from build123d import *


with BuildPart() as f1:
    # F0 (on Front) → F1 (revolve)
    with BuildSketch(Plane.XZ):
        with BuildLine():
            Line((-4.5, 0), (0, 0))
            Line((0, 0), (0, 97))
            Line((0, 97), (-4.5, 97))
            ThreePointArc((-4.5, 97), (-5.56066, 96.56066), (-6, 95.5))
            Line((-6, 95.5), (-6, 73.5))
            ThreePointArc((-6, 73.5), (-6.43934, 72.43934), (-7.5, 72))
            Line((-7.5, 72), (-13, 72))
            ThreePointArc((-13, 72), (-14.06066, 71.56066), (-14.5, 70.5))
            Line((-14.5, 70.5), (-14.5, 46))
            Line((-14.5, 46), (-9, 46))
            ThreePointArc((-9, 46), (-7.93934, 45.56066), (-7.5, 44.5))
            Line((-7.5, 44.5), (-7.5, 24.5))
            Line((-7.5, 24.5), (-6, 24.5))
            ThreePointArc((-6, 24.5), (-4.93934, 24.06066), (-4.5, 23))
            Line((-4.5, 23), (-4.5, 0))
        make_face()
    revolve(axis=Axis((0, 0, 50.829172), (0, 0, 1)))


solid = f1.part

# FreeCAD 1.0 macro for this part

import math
import FreeCAD as App
import Part
import Sketcher
Q = App.Units.Quantity

doc = App.newDocument("Part")
params = doc.addObject("Spreadsheet::Sheet", "Params")
for row, (alias, value) in enumerate([
    ("sketch1_radius", "1.500001 mm"),
    ("sketch1_height", "97 mm"),
    ("sketch1_height2", "22 mm"),
    ("sketch1_height3", "20 mm"),
    ("sketch1_height4", "23 mm"),
    ("revolution_angle", "360 deg"),
], start=1):
    params.set(f"A{row}", alias)
    params.set(f"B{row}", "=" + value)
    params.setAlias(f"B{row}", alias)

body = doc.addObject("PartDesign::Body", "Body")

sketch1 = doc.addObject("Sketcher::SketchObject", "Sketch")
body.addObject(sketch1)
sketch1.AttachmentSupport = (doc.XZ_Plane, [""])
sketch1.MapMode = "FlatFace"
sketch1.addGeometry(Part.LineSegment(App.Vector(-4.5, 0, 0), App.Vector(0, 0, 0)), False)
sketch1.addGeometry(Part.LineSegment(App.Vector(0, 0, 0), App.Vector(0, 97, 0)), False)
sketch1.addGeometry(Part.LineSegment(App.Vector(0, 97, 0), App.Vector(-4.5, 97, 0)), False)
sketch1.addGeometry(Part.ArcOfCircle(Part.Circle(App.Vector(-4.499999, 95.499999, 0), App.Vector(0, 0, 1), 1.500001), math.radians(90.000022), math.radians(179.999978)), False)
sketch1.addGeometry(Part.LineSegment(App.Vector(-6, 95.5, 0), App.Vector(-6, 73.5, 0)), False)
sketch1.addGeometry(Part.ArcOfCircle(Part.Circle(App.Vector(-7.500001, 73.500001, 0), App.Vector(0, 0, 1), 1.500001), math.radians(-89.999978), math.radians(-0.000022)), False)
sketch1.addGeometry(Part.LineSegment(App.Vector(-7.5, 72, 0), App.Vector(-13, 72, 0)), False)
sketch1.addGeometry(Part.ArcOfCircle(Part.Circle(App.Vector(-12.999999, 70.499999, 0), App.Vector(0, 0, 1), 1.500001), math.radians(90.000022), math.radians(179.999978)), False)
sketch1.addGeometry(Part.LineSegment(App.Vector(-14.5, 70.5, 0), App.Vector(-14.5, 46, 0)), False)
sketch1.addGeometry(Part.LineSegment(App.Vector(-14.5, 46, 0), App.Vector(-9, 46, 0)), False)
sketch1.addGeometry(Part.ArcOfCircle(Part.Circle(App.Vector(-9.000001, 44.499999, 0), App.Vector(0, 0, 1), 1.500001), math.radians(0.000022), math.radians(89.999978)), False)
sketch1.addGeometry(Part.LineSegment(App.Vector(-7.5, 44.5, 0), App.Vector(-7.5, 24.5, 0)), False)
sketch1.addGeometry(Part.LineSegment(App.Vector(-7.5, 24.5, 0), App.Vector(-6, 24.5, 0)), False)
sketch1.addGeometry(Part.ArcOfCircle(Part.Circle(App.Vector(-6.000001, 22.999999, 0), App.Vector(0, 0, 1), 1.500001), math.radians(0.000022), math.radians(89.999978)), False)
sketch1.addGeometry(Part.LineSegment(App.Vector(-4.5, 23, 0), App.Vector(-4.5, 0, 0)), False)
sketch1.addConstraint(Sketcher.Constraint("Coincident", 0, 2, 1, 1))
sketch1.addConstraint(Sketcher.Constraint("Coincident", 1, 2, 2, 1))
sketch1.addConstraint(Sketcher.Constraint("Tangent", 2, 2, 3, 1))
sketch1.addConstraint(Sketcher.Constraint("Tangent", 3, 2, 4, 1))
sketch1.addConstraint(Sketcher.Constraint("Tangent", 4, 2, 5, 2))
sketch1.addConstraint(Sketcher.Constraint("Tangent", 5, 1, 6, 1))
sketch1.addConstraint(Sketcher.Constraint("Tangent", 6, 2, 7, 1))
sketch1.addConstraint(Sketcher.Constraint("Tangent", 7, 2, 8, 1))
sketch1.addConstraint(Sketcher.Constraint("Coincident", 8, 2, 9, 1))
sketch1.addConstraint(Sketcher.Constraint("Tangent", 9, 2, 10, 2))
sketch1.addConstraint(Sketcher.Constraint("Tangent", 10, 1, 11, 1))
sketch1.addConstraint(Sketcher.Constraint("Coincident", 11, 2, 12, 1))
sketch1.addConstraint(Sketcher.Constraint("Tangent", 12, 2, 13, 2))
sketch1.addConstraint(Sketcher.Constraint("Tangent", 13, 1, 14, 1))
sketch1.addConstraint(Sketcher.Constraint("Coincident", 14, 2, 0, 1))
sketch1.addConstraint(Sketcher.Constraint("Horizontal", 0))
sketch1.addConstraint(Sketcher.Constraint("Vertical", 1))
sketch1.addConstraint(Sketcher.Constraint("Horizontal", 2))
sketch1.addConstraint(Sketcher.Constraint("Vertical", 4))
sketch1.addConstraint(Sketcher.Constraint("Horizontal", 6))
sketch1.addConstraint(Sketcher.Constraint("Vertical", 8))
sketch1.addConstraint(Sketcher.Constraint("Horizontal", 9))
sketch1.addConstraint(Sketcher.Constraint("Vertical", 11))
sketch1.addConstraint(Sketcher.Constraint("Horizontal", 12))
sketch1.addConstraint(Sketcher.Constraint("Vertical", 14))
sketch1.addConstraint(Sketcher.Constraint("Coincident", 0, 2, -1, 1))
sketch1.addConstraint(Sketcher.Constraint("Equal", 3, 5))
sketch1.addConstraint(Sketcher.Constraint("Equal", 5, 7))
sketch1.addConstraint(Sketcher.Constraint("Equal", 7, 10))
sketch1.addConstraint(Sketcher.Constraint("Equal", 10, 13))
sketch1.addConstraint(Sketcher.Constraint("Vertical", 13, 3, 3, 2))
sketch1.addConstraint(Sketcher.Constraint("Vertical", 5, 1, 10, 1))
sketch1.addConstraint(Sketcher.Constraint("Radius", 3, Q("1.500001 mm")))
sketch1.addConstraint(Sketcher.Constraint("DistanceY", 1, 1, 1, 2, Q("97 mm")))
sketch1.addConstraint(Sketcher.Constraint("DistanceY", 4, 2, 4, 1, Q("22 mm")))
sketch1.addConstraint(Sketcher.Constraint("DistanceY", 11, 2, 11, 1, Q("20 mm")))
sketch1.addConstraint(Sketcher.Constraint("DistanceY", 14, 2, 14, 1, Q("23 mm")))
sketch1.addConstraint(Sketcher.Constraint("DistanceX", 0, 1, 0, 2, Q("4.5 mm")))
sketch1.addConstraint(Sketcher.Constraint("DistanceX", 6, 2, 6, 1, Q("5.5 mm")))
sketch1.setExpression("Constraints[32]", "Params.sketch1_radius")
sketch1.setExpression("Constraints[33]", "Params.sketch1_height")
sketch1.setExpression("Constraints[34]", "Params.sketch1_height2")
sketch1.setExpression("Constraints[35]", "Params.sketch1_height3")
sketch1.setExpression("Constraints[36]", "Params.sketch1_height4")
revolution = doc.addObject("PartDesign::Revolution", "Revolution")
body.addObject(revolution)
revolution.Profile = sketch1
revolution.ReferenceAxis = (sketch1, ["V_Axis"])
revolution.setExpression("Angle", "Params.revolution_angle")

doc.recompute()
